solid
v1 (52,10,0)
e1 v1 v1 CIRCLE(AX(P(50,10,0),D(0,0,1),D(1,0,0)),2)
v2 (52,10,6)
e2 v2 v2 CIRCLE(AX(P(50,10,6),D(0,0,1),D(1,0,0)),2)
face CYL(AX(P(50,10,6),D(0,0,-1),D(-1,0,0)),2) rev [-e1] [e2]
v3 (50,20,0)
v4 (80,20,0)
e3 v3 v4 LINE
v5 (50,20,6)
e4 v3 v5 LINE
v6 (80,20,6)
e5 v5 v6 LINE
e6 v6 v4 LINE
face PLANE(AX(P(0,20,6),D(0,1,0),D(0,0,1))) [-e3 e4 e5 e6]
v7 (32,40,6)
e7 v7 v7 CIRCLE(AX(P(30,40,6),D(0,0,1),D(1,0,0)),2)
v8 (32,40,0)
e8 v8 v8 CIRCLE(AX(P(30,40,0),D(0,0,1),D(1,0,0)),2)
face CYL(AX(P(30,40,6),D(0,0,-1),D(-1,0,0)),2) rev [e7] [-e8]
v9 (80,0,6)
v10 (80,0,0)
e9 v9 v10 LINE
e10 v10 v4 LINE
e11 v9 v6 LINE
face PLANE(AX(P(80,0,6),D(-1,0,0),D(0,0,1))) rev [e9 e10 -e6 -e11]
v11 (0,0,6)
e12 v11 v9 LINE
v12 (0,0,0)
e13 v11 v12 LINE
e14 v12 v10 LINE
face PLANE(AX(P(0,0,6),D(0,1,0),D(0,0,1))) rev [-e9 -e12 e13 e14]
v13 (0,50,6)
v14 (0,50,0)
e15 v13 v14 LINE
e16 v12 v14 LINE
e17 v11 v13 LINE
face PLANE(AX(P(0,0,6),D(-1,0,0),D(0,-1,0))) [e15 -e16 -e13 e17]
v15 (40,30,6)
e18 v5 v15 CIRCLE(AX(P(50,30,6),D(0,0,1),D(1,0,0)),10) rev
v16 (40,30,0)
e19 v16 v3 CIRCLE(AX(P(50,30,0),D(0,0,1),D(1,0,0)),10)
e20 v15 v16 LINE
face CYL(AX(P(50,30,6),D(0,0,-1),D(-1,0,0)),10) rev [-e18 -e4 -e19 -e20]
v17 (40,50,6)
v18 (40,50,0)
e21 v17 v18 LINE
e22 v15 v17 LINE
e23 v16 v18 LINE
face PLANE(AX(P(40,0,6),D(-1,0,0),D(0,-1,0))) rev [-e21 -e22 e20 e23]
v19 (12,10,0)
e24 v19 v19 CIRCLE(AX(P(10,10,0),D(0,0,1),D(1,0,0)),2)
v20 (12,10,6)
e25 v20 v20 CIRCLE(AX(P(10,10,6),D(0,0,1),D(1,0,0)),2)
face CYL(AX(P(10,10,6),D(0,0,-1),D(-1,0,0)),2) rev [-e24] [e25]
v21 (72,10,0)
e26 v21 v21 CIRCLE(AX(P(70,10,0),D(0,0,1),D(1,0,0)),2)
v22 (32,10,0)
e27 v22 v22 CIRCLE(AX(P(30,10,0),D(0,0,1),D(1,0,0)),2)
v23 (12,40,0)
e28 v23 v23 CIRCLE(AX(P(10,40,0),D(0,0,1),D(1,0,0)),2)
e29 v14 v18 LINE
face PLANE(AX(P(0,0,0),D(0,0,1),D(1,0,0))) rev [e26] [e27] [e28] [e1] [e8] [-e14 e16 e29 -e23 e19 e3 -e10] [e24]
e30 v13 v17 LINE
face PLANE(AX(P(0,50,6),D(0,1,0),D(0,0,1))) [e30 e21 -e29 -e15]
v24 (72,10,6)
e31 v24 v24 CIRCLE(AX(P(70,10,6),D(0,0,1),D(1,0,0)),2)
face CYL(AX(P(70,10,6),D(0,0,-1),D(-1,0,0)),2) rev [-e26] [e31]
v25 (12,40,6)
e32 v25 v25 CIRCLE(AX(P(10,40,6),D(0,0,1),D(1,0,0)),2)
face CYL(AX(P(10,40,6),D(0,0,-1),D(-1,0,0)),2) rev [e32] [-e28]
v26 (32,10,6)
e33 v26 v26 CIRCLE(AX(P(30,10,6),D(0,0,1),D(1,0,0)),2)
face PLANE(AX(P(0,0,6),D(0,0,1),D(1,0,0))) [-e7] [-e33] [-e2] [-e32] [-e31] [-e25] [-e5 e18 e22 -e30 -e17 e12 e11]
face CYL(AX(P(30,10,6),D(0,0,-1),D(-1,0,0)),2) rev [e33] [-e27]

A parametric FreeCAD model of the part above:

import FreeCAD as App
import Part
import Sketcher
from FreeCAD import Vector
Q = App.Units.Quantity


def edges_at(feature, points):
    """Names of the edges that pass closest to the given points."""
    edges = feature.Shape.Edges
    near = lambda p: min(range(len(edges)), key=lambda i: edges[i].distToShape(Part.Vertex(*p))[0])
    return sorted({f"Edge{near(p) + 1}" for p in points})

doc = App.newDocument("Part")
body = doc.addObject("PartDesign::Body", "Body")

sketch1 = body.newObject("Sketcher::SketchObject", "Sketch")
sketch1.AttachmentSupport = (doc.getObject("XY_Plane"), [""])
sketch1.MapMode = "FlatFace"
sketch1.addGeometry([
    Part.LineSegment(Vector(0, 50, 0), Vector(0, 0, 0)),
    Part.LineSegment(Vector(0, 0, 0), Vector(80, 0, 0)),
    Part.LineSegment(Vector(80, 0, 0), Vector(80, 20, 0)),
    Part.LineSegment(Vector(80, 20, 0), Vector(40, 20, 0)),
    Part.LineSegment(Vector(40, 20, 0), Vector(40, 50, 0)),
    Part.LineSegment(Vector(40, 50, 0), Vector(0, 50, 0)),
    Part.Circle(Vector(10, 10, 0), Vector(0, 0, 1), 2),
    Part.Circle(Vector(30, 10, 0), Vector(0, 0, 1), 2),
    Part.Circle(Vector(10, 40, 0), Vector(0, 0, 1), 2),
    Part.Circle(Vector(30, 40, 0), Vector(0, 0, 1), 2),
    Part.Circle(Vector(70, 10, 0), Vector(0, 0, 1), 2),
    Part.Circle(Vector(50, 10, 0), Vector(0, 0, 1), 2),
], False)
sketch1.addConstraint([
    Sketcher.Constraint("Coincident", 0, 2, 1, 1),
    Sketcher.Constraint("Coincident", 1, 2, 2, 1),
    Sketcher.Constraint("Coincident", 2, 2, 3, 1),
    Sketcher.Constraint("Coincident", 3, 2, 4, 1),
    Sketcher.Constraint("Coincident", 4, 2, 5, 1),
    Sketcher.Constraint("Coincident", 5, 2, 0, 1),
    Sketcher.Constraint("Vertical", 0),
    Sketcher.Constraint("Horizontal", 1),
    Sketcher.Constraint("Vertical", 2),
    Sketcher.Constraint("Horizontal", 3),
    Sketcher.Constraint("Vertical", 4),
    Sketcher.Constraint("Horizontal", 5),
    Sketcher.Constraint("Coincident", 0, 2, -1, 1),
    Sketcher.Constraint("Equal", 6, 7),
    Sketcher.Constraint("Equal", 7, 8),
    Sketcher.Constraint("Equal", 8, 9),
    Sketcher.Constraint("Equal", 9, 10),
    Sketcher.Constraint("Equal", 10, 11),
    Sketcher.Constraint("Horizontal", 6, 3, 7, 3),
    Sketcher.Constraint("Horizontal", 8, 3, 9, 3),
    Sketcher.Constraint("Horizontal", 7, 3, 10, 3),
    Sketcher.Constraint("Horizontal", 10, 3, 11, 3),
    Sketcher.Constraint("Vertical", 6, 3, 8, 3),
    Sketcher.Constraint("Vertical", 7, 3, 9, 3),
    Sketcher.Constraint("Equal", 3, 5),
    Sketcher.Constraint("Diameter", 6, Q("4 mm")),
    Sketcher.Constraint("DistanceX", 1, 1, 1, 2, Q("80 mm")),
    Sketcher.Constraint("DistanceY", 0, 2, 0, 1, Q("50 mm")),
    Sketcher.Constraint("DistanceY", 2, 1, 2, 2, Q("20 mm")),
    Sketcher.Constraint("DistanceX", -1, 1, 6, 3, Q("10 mm")),
    Sketcher.Constraint("DistanceY", -1, 1, 6, 3, Q("10 mm")),
    Sketcher.Constraint("DistanceX", -1, 1, 7, 3, Q("30 mm")),
    Sketcher.Constraint("DistanceY", -1, 1, 8, 3, Q("40 mm")),
    Sketcher.Constraint("DistanceX", -1, 1, 10, 3, Q("70 mm")),
    Sketcher.Constraint("DistanceX", -1, 1, 11, 3, Q("50 mm")),
])
pad1 = body.newObject("PartDesign::Pad", "Pad")
pad1.Profile = sketch1
pad1.Length = 6
doc.recompute()

fillet = body.newObject("PartDesign::Fillet", "Fillet")
fillet.Base = (pad1, edges_at(pad1, [(40, 20, 3)]))
fillet.Radius = 10

doc.recompute()
